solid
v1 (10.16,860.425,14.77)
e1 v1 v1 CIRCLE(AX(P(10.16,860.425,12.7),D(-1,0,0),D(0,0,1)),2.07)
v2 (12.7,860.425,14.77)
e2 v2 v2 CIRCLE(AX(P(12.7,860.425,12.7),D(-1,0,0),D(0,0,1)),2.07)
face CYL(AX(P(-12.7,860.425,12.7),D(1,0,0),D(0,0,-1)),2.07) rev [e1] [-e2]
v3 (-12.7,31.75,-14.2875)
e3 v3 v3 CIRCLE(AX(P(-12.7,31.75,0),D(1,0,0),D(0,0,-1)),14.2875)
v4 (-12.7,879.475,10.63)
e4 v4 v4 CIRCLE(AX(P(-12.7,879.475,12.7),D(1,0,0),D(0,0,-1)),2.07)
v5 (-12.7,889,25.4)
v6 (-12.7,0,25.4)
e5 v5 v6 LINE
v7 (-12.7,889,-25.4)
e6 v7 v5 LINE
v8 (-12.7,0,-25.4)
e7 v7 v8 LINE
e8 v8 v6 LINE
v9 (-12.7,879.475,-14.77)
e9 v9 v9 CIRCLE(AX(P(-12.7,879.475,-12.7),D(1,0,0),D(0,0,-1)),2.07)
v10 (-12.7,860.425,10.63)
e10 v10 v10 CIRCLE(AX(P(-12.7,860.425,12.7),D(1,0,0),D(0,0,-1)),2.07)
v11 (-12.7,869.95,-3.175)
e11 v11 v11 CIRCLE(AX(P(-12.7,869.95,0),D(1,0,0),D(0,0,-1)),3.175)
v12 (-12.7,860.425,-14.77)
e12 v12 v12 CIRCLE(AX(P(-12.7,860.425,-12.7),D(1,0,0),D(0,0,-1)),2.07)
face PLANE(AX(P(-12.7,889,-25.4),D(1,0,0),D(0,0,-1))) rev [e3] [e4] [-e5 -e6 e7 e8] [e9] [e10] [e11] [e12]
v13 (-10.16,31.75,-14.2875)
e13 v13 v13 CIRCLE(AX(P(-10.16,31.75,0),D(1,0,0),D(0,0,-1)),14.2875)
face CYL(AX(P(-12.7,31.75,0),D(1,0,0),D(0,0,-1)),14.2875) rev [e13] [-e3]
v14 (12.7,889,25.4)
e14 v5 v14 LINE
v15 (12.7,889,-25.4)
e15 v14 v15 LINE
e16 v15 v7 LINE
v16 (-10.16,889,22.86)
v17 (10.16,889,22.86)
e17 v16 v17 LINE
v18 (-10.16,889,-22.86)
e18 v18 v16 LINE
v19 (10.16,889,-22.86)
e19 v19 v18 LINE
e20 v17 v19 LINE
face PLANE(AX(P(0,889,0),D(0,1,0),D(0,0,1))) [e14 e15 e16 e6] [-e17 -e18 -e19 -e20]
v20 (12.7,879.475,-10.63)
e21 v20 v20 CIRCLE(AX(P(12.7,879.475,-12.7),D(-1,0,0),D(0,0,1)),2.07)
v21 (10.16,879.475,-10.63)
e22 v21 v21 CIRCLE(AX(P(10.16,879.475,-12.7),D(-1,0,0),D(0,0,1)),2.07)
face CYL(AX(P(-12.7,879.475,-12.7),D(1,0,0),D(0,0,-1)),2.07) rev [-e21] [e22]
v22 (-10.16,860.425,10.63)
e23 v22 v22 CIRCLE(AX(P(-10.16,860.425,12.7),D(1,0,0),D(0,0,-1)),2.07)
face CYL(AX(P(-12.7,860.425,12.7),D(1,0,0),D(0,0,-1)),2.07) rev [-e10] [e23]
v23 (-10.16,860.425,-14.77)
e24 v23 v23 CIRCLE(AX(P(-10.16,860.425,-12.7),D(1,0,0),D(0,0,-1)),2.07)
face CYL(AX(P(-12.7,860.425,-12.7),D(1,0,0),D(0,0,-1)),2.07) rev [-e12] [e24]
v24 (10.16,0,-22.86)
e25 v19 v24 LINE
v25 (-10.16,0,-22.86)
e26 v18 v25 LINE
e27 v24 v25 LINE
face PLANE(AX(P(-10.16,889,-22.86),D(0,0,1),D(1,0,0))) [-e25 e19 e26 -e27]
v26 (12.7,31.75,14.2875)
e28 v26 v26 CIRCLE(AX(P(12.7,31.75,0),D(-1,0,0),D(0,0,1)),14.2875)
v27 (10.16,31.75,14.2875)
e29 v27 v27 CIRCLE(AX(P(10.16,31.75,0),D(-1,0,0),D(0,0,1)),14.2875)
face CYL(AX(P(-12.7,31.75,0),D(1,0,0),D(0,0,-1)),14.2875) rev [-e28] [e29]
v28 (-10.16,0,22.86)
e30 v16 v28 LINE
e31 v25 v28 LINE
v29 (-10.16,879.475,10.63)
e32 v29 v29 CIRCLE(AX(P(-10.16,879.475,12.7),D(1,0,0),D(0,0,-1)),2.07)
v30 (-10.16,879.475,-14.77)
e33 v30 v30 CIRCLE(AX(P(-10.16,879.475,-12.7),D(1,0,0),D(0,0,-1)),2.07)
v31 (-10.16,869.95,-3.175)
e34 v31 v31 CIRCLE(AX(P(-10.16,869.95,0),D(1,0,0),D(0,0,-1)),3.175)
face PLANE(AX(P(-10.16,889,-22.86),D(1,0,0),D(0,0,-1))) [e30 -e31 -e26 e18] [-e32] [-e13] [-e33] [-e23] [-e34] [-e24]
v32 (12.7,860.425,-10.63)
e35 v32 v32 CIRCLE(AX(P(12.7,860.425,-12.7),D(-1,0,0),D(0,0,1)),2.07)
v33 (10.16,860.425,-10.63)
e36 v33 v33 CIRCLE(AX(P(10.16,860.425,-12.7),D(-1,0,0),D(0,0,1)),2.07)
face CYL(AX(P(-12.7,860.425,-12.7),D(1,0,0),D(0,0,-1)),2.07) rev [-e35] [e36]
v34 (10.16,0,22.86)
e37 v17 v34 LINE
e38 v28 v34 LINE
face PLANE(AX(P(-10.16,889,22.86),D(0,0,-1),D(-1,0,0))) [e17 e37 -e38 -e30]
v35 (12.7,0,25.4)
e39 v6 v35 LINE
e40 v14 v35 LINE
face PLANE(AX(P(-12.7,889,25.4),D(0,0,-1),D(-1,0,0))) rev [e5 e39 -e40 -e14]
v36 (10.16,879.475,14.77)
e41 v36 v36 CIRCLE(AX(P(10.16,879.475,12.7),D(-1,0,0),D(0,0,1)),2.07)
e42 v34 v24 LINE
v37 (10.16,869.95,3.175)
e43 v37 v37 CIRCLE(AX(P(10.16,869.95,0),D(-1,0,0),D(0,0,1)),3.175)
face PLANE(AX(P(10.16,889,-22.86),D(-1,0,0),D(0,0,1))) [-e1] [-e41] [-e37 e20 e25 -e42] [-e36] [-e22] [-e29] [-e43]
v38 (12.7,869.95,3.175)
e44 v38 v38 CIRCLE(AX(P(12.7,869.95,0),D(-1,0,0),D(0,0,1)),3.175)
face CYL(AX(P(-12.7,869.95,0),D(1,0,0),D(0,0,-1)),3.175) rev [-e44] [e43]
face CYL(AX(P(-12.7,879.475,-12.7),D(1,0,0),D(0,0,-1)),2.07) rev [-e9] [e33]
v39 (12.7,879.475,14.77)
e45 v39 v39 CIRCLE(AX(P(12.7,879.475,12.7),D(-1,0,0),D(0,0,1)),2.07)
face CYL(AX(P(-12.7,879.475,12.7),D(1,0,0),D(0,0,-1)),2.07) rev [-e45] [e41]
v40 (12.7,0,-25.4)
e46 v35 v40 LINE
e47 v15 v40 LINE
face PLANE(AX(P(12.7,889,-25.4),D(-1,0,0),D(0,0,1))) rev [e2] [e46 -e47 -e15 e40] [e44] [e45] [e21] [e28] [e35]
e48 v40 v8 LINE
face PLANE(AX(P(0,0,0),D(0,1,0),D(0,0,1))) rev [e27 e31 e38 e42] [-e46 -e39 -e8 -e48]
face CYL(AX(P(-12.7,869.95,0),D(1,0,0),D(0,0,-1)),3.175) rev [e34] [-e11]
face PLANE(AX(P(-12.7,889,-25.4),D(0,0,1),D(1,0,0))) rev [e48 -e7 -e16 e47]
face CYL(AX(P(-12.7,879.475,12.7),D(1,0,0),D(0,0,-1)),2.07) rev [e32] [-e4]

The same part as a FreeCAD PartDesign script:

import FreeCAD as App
import Part
import Sketcher
Q = App.Units.Quantity

doc = App.newDocument("Part")
body = doc.addObject("PartDesign::Body", "Body")

# Sketch on XZ plane
sketch1 = body.newObject("Sketcher::SketchObject", "Sketch")
sketch1.AttachmentSupport = (doc.getObject("XZ_Plane"), [""])
sketch1.MapMode = "FlatFace"
sketch1.addGeometry([
    Part.LineSegment(App.Vector(-13, -25, 0), App.Vector(-13, 25, 0)),  # 0
    Part.LineSegment(App.Vector(-13, 25, 0), App.Vector(13, 25, 0)),  # 1
    Part.LineSegment(App.Vector(13, 25, 0), App.Vector(13, -25, 0)),  # 2
    Part.LineSegment(App.Vector(13, -25, 0), App.Vector(-13, -25, 0)),  # 3
    Part.LineSegment(App.Vector(10, 23, 0), App.Vector(-10, 23, 0)),  # 4
    Part.LineSegment(App.Vector(-10, 23, 0), App.Vector(-10, -23, 0)),  # 5
    Part.LineSegment(App.Vector(-10, -23, 0), App.Vector(10, -23, 0)),  # 6
    Part.LineSegment(App.Vector(10, -23, 0), App.Vector(10, 23, 0)),  # 7
], False)
sketch1.addConstraint([
    Sketcher.Constraint("Coincident", 0, 2, 1, 1),
    Sketcher.Constraint("Coincident", 1, 2, 2, 1),
    Sketcher.Constraint("Coincident", 2, 2, 3, 1),
    Sketcher.Constraint("Coincident", 3, 2, 0, 1),
    Sketcher.Constraint("Coincident", 4, 2, 5, 1),
    Sketcher.Constraint("Coincident", 5, 2, 6, 1),
    Sketcher.Constraint("Coincident", 6, 2, 7, 1),
    Sketcher.Constraint("Coincident", 7, 2, 4, 1),
    Sketcher.Constraint("Vertical", 0),
    Sketcher.Constraint("Horizontal", 1),
    Sketcher.Constraint("Vertical", 2),
    Sketcher.Constraint("Horizontal", 3),
    Sketcher.Constraint("Horizontal", 4),
    Sketcher.Constraint("Vertical", 5),
    Sketcher.Constraint("Horizontal", 6),
    Sketcher.Constraint("Vertical", 7),
    Sketcher.Constraint("Symmetric", 0, 2, 2, 2, -1, 1),
    Sketcher.Constraint("Symmetric", 4, 2, 6, 2, -1, 1),
    Sketcher.Constraint("DistanceX", 1, 1, 1, 2, Q("1 in")),
    Sketcher.Constraint("DistanceY", 0, 1, 0, 2, Q("2 in")),
    Sketcher.Constraint("DistanceX", 4, 2, 4, 1, Q("0.8 in")),
    Sketcher.Constraint("DistanceY", 5, 2, 5, 1, Q("1.8 in")),
])
pad1 = body.newObject("PartDesign::Pad", "Pad")
pad1.Profile = sketch1
pad1.Length = Q("35 in")
pad1.Reversed = True

# Sketch on YZ plane
sketch2 = body.newObject("Sketcher::SketchObject", "Sketch001")
sketch2.AttachmentSupport = (doc.getObject("YZ_Plane"), [""])
sketch2.MapMode = "FlatFace"
sketch2.AttachmentOffset = App.Placement(App.Vector(0, 0, 0.5 * 25.4), App.Rotation())
sketch2.addGeometry(Part.Circle(App.Vector(32, 0, 0), App.Vector(0, 0, 1), 14), False)
sketch2.addConstraint([
    Sketcher.Constraint("PointOnObject", 0, 3, -1),
    Sketcher.Constraint("Diameter", 0, Q("1.125 in")),
    Sketcher.Constraint("DistanceX", -1, 1, 0, 3, Q("1.25 in")),
])
pocket1 = body.newObject("PartDesign::Pocket", "Pocket")
pocket1.Profile = sketch2
pocket1.Type = "ThroughAll"
pocket1.Midplane = True

# Sketch on YZ plane
sketch3 = body.newObject("Sketcher::SketchObject", "Sketch002")
sketch3.AttachmentSupport = (doc.getObject("YZ_Plane"), [""])
sketch3.MapMode = "FlatFace"
sketch3.AttachmentOffset = App.Placement(App.Vector(0, 0, 0.5 * 25.4), App.Rotation())
sketch3.addGeometry([
    Part.Circle(App.Vector(879.5, 12.7, 0), App.Vector(0, 0, 1), 2.1),  # 0
    Part.Circle(App.Vector(860.4, 12.7, 0), App.Vector(0, 0, 1), 2.1),  # 1
    Part.Circle(App.Vector(870, 0, 0), App.Vector(0, 0, 1), 3.2),  # 2
    Part.Circle(App.Vector(860.4, -12.7, 0), App.Vector(0, 0, 1), 2.1),  # 3
    Part.Circle(App.Vector(879.5, -12.7, 0), App.Vector(0, 0, 1), 2.1),  # 4
], False)
sketch3.addConstraint([
    Sketcher.Constraint("Equal", 0, 1),
    Sketcher.Constraint("Equal", 1, 3),
    Sketcher.Constraint("Equal", 3, 4),
    Sketcher.Constraint("Symmetric", 1, 3, 3, 3, -1),
    Sketcher.Constraint("Symmetric", 0, 3, 4, 3, -1),
    Sketcher.Constraint("PointOnObject", 2, 3, -1),
    Sketcher.Constraint("Horizontal", 0, 3, 1, 3),
    Sketcher.Constraint("Diameter", 2, Q("0.25 in")),
    Sketcher.Constraint("DistanceY", 3, 3, 1, 3, Q("1 in")),
    Sketcher.Constraint("Diameter", 0, Q("4.14 mm")),
    Sketcher.Constraint("DistanceX", -1, 1, 2, 3, Q("34.25 in")),
    Sketcher.Constraint("DistanceX", 1, 3, 0, 3, Q("0.75 in")),
    Sketcher.Constraint("DistanceX", -1, 1, 0, 3, Q("34.625 in")),
])
pocket2 = body.newObject("PartDesign::Pocket", "Pocket001")
pocket2.Profile = sketch3
pocket2.Type = "ThroughAll"
pocket2.Midplane = True

doc.recompute()
